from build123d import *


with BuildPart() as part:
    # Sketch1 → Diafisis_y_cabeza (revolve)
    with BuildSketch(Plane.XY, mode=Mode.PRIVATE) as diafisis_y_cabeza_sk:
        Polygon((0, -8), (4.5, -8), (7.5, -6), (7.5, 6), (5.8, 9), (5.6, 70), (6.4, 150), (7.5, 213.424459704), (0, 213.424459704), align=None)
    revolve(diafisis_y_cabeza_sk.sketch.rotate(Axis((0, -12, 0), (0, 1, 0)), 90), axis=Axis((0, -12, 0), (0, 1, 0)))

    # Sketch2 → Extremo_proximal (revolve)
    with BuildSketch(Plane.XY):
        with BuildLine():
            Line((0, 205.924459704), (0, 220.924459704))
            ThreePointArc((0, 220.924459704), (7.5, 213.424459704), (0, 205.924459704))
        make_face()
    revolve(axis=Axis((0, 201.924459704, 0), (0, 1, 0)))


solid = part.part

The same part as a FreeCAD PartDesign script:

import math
import FreeCAD as App
import Part
import Sketcher

V = App.Vector
Q = App.Units.Quantity


def add_polygon(sketch, points):
    """Adds a closed chain of lines whose ends are joined by coincident constraints."""
    first, n = sketch.GeometryCount, len(points)
    for a, b in zip(points, points[1:] + points[:1]):
        sketch.addGeometry(Part.LineSegment(App.Vector(*a, 0), App.Vector(*b, 0)), False)
    for i in range(n):
        sketch.addConstraint(Sketcher.Constraint("Coincident", first + i, 2, first + (i + 1) % n, 1))

doc = App.newDocument("Part")
body = doc.addObject("PartDesign::Body", "Body")

# Sketch on XY plane
sketch1 = doc.addObject("Sketcher::SketchObject", "Sketch")
body.addObject(sketch1)
sketch1.AttachmentSupport = (doc.XY_Plane, [""])
sketch1.MapMode = "FlatFace"
add_polygon(sketch1, [(0, -8), (4.5, -8), (7.5, -6), (7.5, 6), (5.8, 9), (5.6, 70), (6.4, 150), (7.5, 213.42446), (0, 213.42446)])  # lines 0-8
sketch1.addConstraint(Sketcher.Constraint("Horizontal", 0))
sketch1.addConstraint(Sketcher.Constraint("Vertical", 2))
sketch1.addConstraint(Sketcher.Constraint("Horizontal", 7))
sketch1.addConstraint(Sketcher.Constraint("Vertical", 8))
sketch1.addConstraint(Sketcher.Constraint("PointOnObject", 7, 2, -2))
sketch1.addConstraint(Sketcher.Constraint("Vertical", 2, 2, 6, 2))
sketch1.addConstraint(Sketcher.Constraint("DistanceY", 2, 1, 2, 2, Q("12 mm")))
sketch1.addConstraint(Sketcher.Constraint("DistanceX", 0, 1, 0, 2, Q("4.5 mm")))
sketch1.addConstraint(Sketcher.Constraint("DistanceX", 7, 2, 7, 1, Q("7.5 mm")))
sketch1.addConstraint(Sketcher.Constraint("DistanceY", 0, 2, -1, 1, Q("8 mm")))
sketch1.addConstraint(Sketcher.Constraint("DistanceY", 1, 2, -1, 1, Q("6 mm")))
sketch1.addConstraint(Sketcher.Constraint("DistanceY", -1, 1, 3, 2, Q("9 mm")))
sketch1.addConstraint(Sketcher.Constraint("DistanceY", -1, 1, 4, 2, Q("70 mm")))
sketch1.addConstraint(Sketcher.Constraint("DistanceY", -1, 1, 5, 2, Q("150 mm")))
sketch1.addConstraint(Sketcher.Constraint("DistanceX", -1, 1, 3, 2, Q("5.8 mm")))
sketch1.addConstraint(Sketcher.Constraint("DistanceX", -1, 1, 4, 2, Q("5.6 mm")))
sketch1.addConstraint(Sketcher.Constraint("DistanceX", -1, 1, 5, 2, Q("6.4 mm")))
sketch1.addConstraint(Sketcher.Constraint("DistanceY", 8, 2, 8, 1, Q("221.42446 mm")))
revolution = doc.addObject("PartDesign::Revolution", "Revolution")
body.addObject(revolution)
revolution.Profile = sketch1
revolution.ReferenceAxis = (sketch1, ["V_Axis"])
revolution.Angle = 360

# Sketch on XY plane
sketch2 = doc.addObject("Sketcher::SketchObject", "Sketch001")
body.addObject(sketch2)
sketch2.AttachmentSupport = (doc.XY_Plane, [""])
sketch2.MapMode = "FlatFace"
sketch2.addGeometry(Part.LineSegment(V(0, 220.92446, 0), V(0, 205.92446, 0)), False)
sketch2.addGeometry(Part.ArcOfCircle(Part.Circle(V(0, 213.42446, 0), V(0, 0, 1), 7.5), math.radians(-90), math.radians(90)), False)
sketch2.addConstraint(Sketcher.Constraint("Coincident", 0, 1, 1, 2))
sketch2.addConstraint(Sketcher.Constraint("Coincident", 1, 1, 0, 2))
sketch2.addConstraint(Sketcher.Constraint("Vertical", 0))
sketch2.addConstraint(Sketcher.Constraint("PointOnObject", 1, 3, -2))
sketch2.addConstraint(Sketcher.Constraint("PointOnObject", 0, 1, -2))
sketch2.addConstraint(Sketcher.Constraint("Radius", 1, Q("7.5 mm")))
sketch2.addConstraint(Sketcher.Constraint("DistanceY", -1, 1, 1, 3, Q("213.42446 mm")))
revolution2 = doc.addObject("PartDesign::Revolution", "Revolution001")
body.addObject(revolution2)
revolution2.Profile = sketch2
revolution2.ReferenceAxis = (sketch2, ["V_Axis"])
revolution2.Angle = 360

doc.recompute()
